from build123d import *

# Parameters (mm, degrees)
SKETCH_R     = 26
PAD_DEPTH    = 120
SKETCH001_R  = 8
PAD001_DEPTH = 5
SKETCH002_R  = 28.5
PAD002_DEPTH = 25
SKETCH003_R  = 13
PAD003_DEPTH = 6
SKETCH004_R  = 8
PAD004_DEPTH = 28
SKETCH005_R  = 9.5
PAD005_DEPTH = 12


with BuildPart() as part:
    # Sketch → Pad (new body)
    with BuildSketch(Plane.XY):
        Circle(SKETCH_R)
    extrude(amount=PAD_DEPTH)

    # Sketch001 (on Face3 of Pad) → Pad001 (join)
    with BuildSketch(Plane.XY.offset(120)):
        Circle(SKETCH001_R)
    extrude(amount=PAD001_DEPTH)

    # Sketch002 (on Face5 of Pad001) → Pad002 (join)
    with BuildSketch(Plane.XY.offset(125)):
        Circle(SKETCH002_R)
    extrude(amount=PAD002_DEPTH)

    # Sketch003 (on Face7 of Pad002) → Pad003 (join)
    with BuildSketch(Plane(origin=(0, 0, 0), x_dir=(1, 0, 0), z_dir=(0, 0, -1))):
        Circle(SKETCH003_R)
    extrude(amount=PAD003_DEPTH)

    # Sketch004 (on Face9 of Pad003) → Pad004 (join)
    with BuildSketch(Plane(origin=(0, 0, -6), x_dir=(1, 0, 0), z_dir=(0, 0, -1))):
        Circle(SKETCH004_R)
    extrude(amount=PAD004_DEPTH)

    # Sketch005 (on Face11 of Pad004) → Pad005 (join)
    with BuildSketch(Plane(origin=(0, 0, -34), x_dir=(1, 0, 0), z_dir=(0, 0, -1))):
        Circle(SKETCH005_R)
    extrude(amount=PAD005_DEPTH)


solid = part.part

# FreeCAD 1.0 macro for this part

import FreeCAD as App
import Part
import Sketcher
from FreeCAD import Vector
Q = App.Units.Quantity

doc = App.newDocument("Part")
body = doc.addObject("PartDesign::Body", "Body")

# Sketch on XY plane
sketch1 = body.newObject("Sketcher::SketchObject", "Sketch")
sketch1.AttachmentSupport = (doc.getObject("XY_Plane"), [""])
sketch1.MapMode = "FlatFace"
sketch1.addGeometry(Part.Circle(Vector(0, 0, 0), Vector(0, 0, 1), 26), False)
sketch1.addConstraint([
    Sketcher.Constraint("Coincident", 0, 3, -1, 1),
    Sketcher.Constraint("Diameter", 0, Q("52 mm")),
])
pad1 = body.newObject("PartDesign::Pad", "Pad")
pad1.Profile = sketch1
pad1.Length = 120

# Sketch on XY plane
sketch2 = body.newObject("Sketcher::SketchObject", "Sketch001")
sketch2.AttachmentSupport = (doc.getObject("XY_Plane"), [""])
sketch2.MapMode = "FlatFace"
sketch2.AttachmentOffset = App.Placement(Vector(0, 0, 120), App.Rotation())
sketch2.addGeometry(Part.Circle(Vector(0, 0, 0), Vector(0, 0, 1), 8), False)
sketch2.addConstraint([
    Sketcher.Constraint("Coincident", 0, 3, -1, 1),
    Sketcher.Constraint("Diameter", 0, Q("16 mm")),
])
pad2 = body.newObject("PartDesign::Pad", "Pad001")
pad2.Profile = sketch2
pad2.Length = 5

# Sketch on XY plane
sketch3 = body.newObject("Sketcher::SketchObject", "Sketch002")
sketch3.AttachmentSupport = (doc.getObject("XY_Plane"), [""])
sketch3.MapMode = "FlatFace"
sketch3.AttachmentOffset = App.Placement(Vector(0, 0, 125), App.Rotation())
sketch3.addGeometry(Part.Circle(Vector(0, 0, 0), Vector(0, 0, 1), 28), False)
sketch3.addConstraint([
    Sketcher.Constraint("Coincident", 0, 3, -1, 1),
    Sketcher.Constraint("Diameter", 0, Q("57 mm")),
])
pad3 = body.newObject("PartDesign::Pad", "Pad002")
pad3.Profile = sketch3
pad3.Length = 25

# Sketch on XY plane
sketch4 = body.newObject("Sketcher::SketchObject", "Sketch003")
sketch4.AttachmentSupport = (doc.getObject("XY_Plane"), [""])
sketch4.MapMode = "FlatFace"
sketch4.addGeometry(Part.Circle(Vector(0, 0, 0), Vector(0, 0, 1), 13), False)
sketch4.addConstraint([
    Sketcher.Constraint("Coincident", 0, 3, -1, 1),
    Sketcher.Constraint("Diameter", 0, Q("26 mm")),
])
pad4 = body.newObject("PartDesign::Pad", "Pad003")
pad4.Profile = sketch4
pad4.Length = 6
pad4.Reversed = True

# Sketch on XY plane
sketch5 = body.newObject("Sketcher::SketchObject", "Sketch004")
sketch5.AttachmentSupport = (doc.getObject("XY_Plane"), [""])
sketch5.MapMode = "FlatFace"
sketch5.AttachmentOffset = App.Placement(Vector(0, 0, -6), App.Rotation())
sketch5.addGeometry(Part.Circle(Vector(0, 0, 0), Vector(0, 0, 1), 8), False)
sketch5.addConstraint([
    Sketcher.Constraint("Coincident", 0, 3, -1, 1),
    Sketcher.Constraint("Diameter", 0, Q("16 mm")),
])
pad5 = body.newObject("PartDesign::Pad", "Pad004")
pad5.Profile = sketch5
pad5.Length = 28
pad5.Reversed = True

# Sketch on XY plane
sketch6 = body.newObject("Sketcher::SketchObject", "Sketch005")
sketch6.AttachmentSupport = (doc.getObject("XY_Plane"), [""])
sketch6.MapMode = "FlatFace"
sketch6.AttachmentOffset = App.Placement(Vector(0, 0, -34), App.Rotation())
sketch6.addGeometry(Part.Circle(Vector(0, 0, 0), Vector(0, 0, 1), 10), False)
sketch6.addConstraint([
    Sketcher.Constraint("Coincident", 0, 3, -1, 1),
    Sketcher.Constraint("Diameter", 0, Q("19 mm")),
])
pad6 = body.newObject("PartDesign::Pad", "Pad005")
pad6.Profile = sketch6
pad6.Length = 12
pad6.Reversed = True

doc.recompute()
